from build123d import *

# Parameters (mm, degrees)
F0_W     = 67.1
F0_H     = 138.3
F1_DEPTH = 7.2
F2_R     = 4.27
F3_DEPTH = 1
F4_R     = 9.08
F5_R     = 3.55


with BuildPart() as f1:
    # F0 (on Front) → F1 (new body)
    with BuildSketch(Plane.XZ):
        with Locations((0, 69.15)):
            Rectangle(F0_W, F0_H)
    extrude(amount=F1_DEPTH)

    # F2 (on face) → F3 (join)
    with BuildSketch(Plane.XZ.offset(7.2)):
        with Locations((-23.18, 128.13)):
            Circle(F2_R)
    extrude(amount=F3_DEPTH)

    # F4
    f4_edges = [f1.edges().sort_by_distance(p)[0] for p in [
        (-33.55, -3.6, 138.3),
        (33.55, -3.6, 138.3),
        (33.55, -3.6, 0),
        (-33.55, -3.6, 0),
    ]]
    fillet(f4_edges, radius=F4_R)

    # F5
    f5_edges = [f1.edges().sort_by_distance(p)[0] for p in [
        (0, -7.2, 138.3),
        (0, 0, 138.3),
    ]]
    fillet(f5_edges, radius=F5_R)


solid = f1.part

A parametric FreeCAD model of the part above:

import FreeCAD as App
import Part
import Sketcher
from FreeCAD import Vector
Q = App.Units.Quantity


def edges_at(feature, points):
    """Names of the edges that pass closest to the given points."""
    edges = feature.Shape.Edges
    near = lambda p: min(range(len(edges)), key=lambda i: edges[i].distToShape(Part.Vertex(*p))[0])
    return sorted({f"Edge{near(p) + 1}" for p in points})


def add_polygon(sketch, points):
    """Adds a closed chain of lines whose ends are joined by coincident constraints."""
    first, n = sketch.GeometryCount, len(points)
    for a, b in zip(points, points[1:] + points[:1]):
        sketch.addGeometry(Part.LineSegment(App.Vector(*a, 0), App.Vector(*b, 0)), False)
    for i in range(n):
        sketch.addConstraint(Sketcher.Constraint("Coincident", first + i, 2, first + (i + 1) % n, 1))

doc = App.newDocument("Part")
params = doc.addObject("Spreadsheet::Sheet", "Params")
for row, (alias, value) in enumerate([
    ("sketch1_width", "67.1 mm"),
    ("sketch1_height", "138.3 mm"),
    ("pad1_length", "7.2 mm"),
    ("sketch2_diameter", "8.54 mm"),
    ("pad2_length", "1 mm"),
    ("fillet_radius", "9.08 mm"),
    ("fillet2_radius", "3.55 mm"),
], start=1):
    params.set(f"A{row}", alias)
    params.set(f"B{row}", "=" + value)
    params.setAlias(f"B{row}", alias)

body = doc.addObject("PartDesign::Body", "Body")

# Sketch on XZ plane
sketch1 = doc.addObject("Sketcher::SketchObject", "Sketch")
body.addObject(sketch1)
sketch1.AttachmentSupport = (doc.XZ_Plane, [""])
sketch1.MapMode = "FlatFace"
add_polygon(sketch1, [(-33.55, 138.3), (-33.55, 0), (33.55, 0), (33.55, 138.3)])  # lines 0-3
sketch1.addConstraint([
    Sketcher.Constraint("Vertical", 0),
    Sketcher.Constraint("Horizontal", 1),
    Sketcher.Constraint("Vertical", 2),
    Sketcher.Constraint("Horizontal", 3),
    Sketcher.Constraint("Symmetric", 0, 2, 1, 2, -1, 1),
    Sketcher.Constraint("DistanceX", 1, 1, 1, 2, Q("67.1 mm")),
    Sketcher.Constraint("DistanceY", 0, 2, 0, 1, Q("138.3 mm")),
])
sketch1.setExpression("Constraints[9]", "Params.sketch1_width")
sketch1.setExpression("Constraints[10]", "Params.sketch1_height")
pad1 = doc.addObject("PartDesign::Pad", "Pad")
body.addObject(pad1)
pad1.Profile = sketch1
pad1.setExpression("Length", "Params.pad1_length")

# Sketch on XZ plane
sketch2 = doc.addObject("Sketcher::SketchObject", "Sketch001")
body.addObject(sketch2)
sketch2.AttachmentSupport = (doc.XZ_Plane, [""])
sketch2.MapMode = "FlatFace"
sketch2.AttachmentOffset = App.Placement(Vector(0, 0, 7.2), App.Rotation())
sketch2.addGeometry(Part.Circle(Vector(-23.18, 128.13, 0), Vector(0, 0, 1), 4.27), False)
sketch2.addConstraint([
    Sketcher.Constraint("Diameter", 0, Q("8.54 mm")),
    Sketcher.Constraint("DistanceX", 0, 3, -1, 1, Q("23.18 mm")),
    Sketcher.Constraint("DistanceY", -1, 1, 0, 3, Q("128.13 mm")),
])
sketch2.setExpression("Constraints[0]", "Params.sketch2_diameter")
pad2 = doc.addObject("PartDesign::Pad", "Pad001")
body.addObject(pad2)
pad2.Profile = sketch2
pad2.setExpression("Length", "Params.pad2_length")
doc.recompute()

fillet = doc.addObject("PartDesign::Fillet", "Fillet")
body.addObject(fillet)
fillet.Base = (pad2, edges_at(pad2, [
    (-33.55, -3.6, 138.3),
    (33.55, -3.6, 138.3),
    (33.55, -3.6, 0),
    (-33.55, -3.6, 0),
]))
fillet.setExpression("Radius", "Params.fillet_radius")
doc.recompute()

fillet2 = doc.addObject("PartDesign::Fillet", "Fillet001")
body.addObject(fillet2)
fillet2.Base = (fillet, edges_at(fillet, [(0, -7.2, 138.3), (0, 0, 138.3)]))
fillet2.setExpression("Radius", "Params.fillet2_radius")

doc.recompute()
